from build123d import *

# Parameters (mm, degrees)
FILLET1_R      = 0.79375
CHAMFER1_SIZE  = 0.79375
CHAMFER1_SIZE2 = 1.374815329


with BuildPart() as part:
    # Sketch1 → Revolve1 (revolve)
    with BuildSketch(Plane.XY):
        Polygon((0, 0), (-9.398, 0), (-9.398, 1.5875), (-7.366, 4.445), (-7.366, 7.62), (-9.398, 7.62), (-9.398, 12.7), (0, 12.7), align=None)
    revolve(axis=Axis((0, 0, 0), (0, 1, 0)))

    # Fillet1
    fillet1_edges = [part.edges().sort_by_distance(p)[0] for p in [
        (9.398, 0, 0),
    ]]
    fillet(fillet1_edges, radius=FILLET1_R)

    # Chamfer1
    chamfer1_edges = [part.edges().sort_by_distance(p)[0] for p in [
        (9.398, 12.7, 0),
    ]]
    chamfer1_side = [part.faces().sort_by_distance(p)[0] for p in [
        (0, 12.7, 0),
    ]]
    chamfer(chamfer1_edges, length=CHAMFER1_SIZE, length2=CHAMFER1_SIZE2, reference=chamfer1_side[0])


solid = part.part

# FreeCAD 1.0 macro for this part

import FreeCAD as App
import Part
import Sketcher
Q = App.Units.Quantity


def edges_at(feature, points):
    """Names of the edges that pass closest to the given points."""
    edges = feature.Shape.Edges
    near = lambda p: min(range(len(edges)), key=lambda i: edges[i].distToShape(Part.Vertex(*p))[0])
    return sorted({f"Edge{near(p) + 1}" for p in points})


def add_polygon(sketch, points):
    """Adds a closed chain of lines whose ends are joined by coincident constraints."""
    first, n = sketch.GeometryCount, len(points)
    for a, b in zip(points, points[1:] + points[:1]):
        sketch.addGeometry(Part.LineSegment(App.Vector(*a, 0), App.Vector(*b, 0)), False)
    for i in range(n):
        sketch.addConstraint(Sketcher.Constraint("Coincident", first + i, 2, first + (i + 1) % n, 1))

doc = App.newDocument("Part")
body = doc.addObject("PartDesign::Body", "Body")

# Sketch on XY plane
sketch1 = body.newObject("Sketcher::SketchObject", "Sketch")
sketch1.AttachmentSupport = (doc.getObject("XY_Plane"), [""])
sketch1.MapMode = "FlatFace"
add_polygon(sketch1, [(-9.398, 0), (0, 0), (0, 12.7), (-9.398, 12.7), (-9.398, 7.62), (-7.366, 7.62), (-7.366, 4.445), (-9.398, 1.5875)])  # lines 0-7
sketch1.addConstraint(Sketcher.Constraint("Horizontal", 0))
sketch1.addConstraint(Sketcher.Constraint("Vertical", 1))
sketch1.addConstraint(Sketcher.Constraint("Horizontal", 2))
sketch1.addConstraint(Sketcher.Constraint("Vertical", 3))
sketch1.addConstraint(Sketcher.Constraint("Horizontal", 4))
sketch1.addConstraint(Sketcher.Constraint("Vertical", 5))
sketch1.addConstraint(Sketcher.Constraint("Vertical", 7))
sketch1.addConstraint(Sketcher.Constraint("Coincident", 0, 2, -1, 1))
sketch1.addConstraint(Sketcher.Constraint("Vertical", 3, 2, 6, 2))
sketch1.addConstraint(Sketcher.Constraint("DistanceY", 1, 1, 1, 2, Q("0.5 in")))
sketch1.addConstraint(Sketcher.Constraint("DistanceY", 3, 2, 3, 1, Q("0.2 in")))
sketch1.addConstraint(Sketcher.Constraint("DistanceX", 0, 1, 0, 2, Q("0.37 in")))
sketch1.addConstraint(Sketcher.Constraint("DistanceX", 4, 1, 4, 2, Q("0.08 in")))
sketch1.addConstraint(Sketcher.Constraint("DistanceY", 5, 2, 5, 1, Q("0.125 in")))
sketch1.addConstraint(Sketcher.Constraint("DistanceY", 7, 2, 7, 1, Q("0.0625 in")))
revolution = body.newObject("PartDesign::Revolution", "Revolution")
revolution.Profile = sketch1
revolution.ReferenceAxis = (sketch1, ["V_Axis"])
revolution.Angle = 360
doc.recompute()

fillet = body.newObject("PartDesign::Fillet", "Fillet")
fillet.Base = (revolution, edges_at(revolution, [(9.398, 0, 0)]))
fillet.Radius = Q("0.03125 in")
doc.recompute()

chamfer = body.newObject("PartDesign::Chamfer", "Chamfer")
chamfer.Base = (fillet, edges_at(fillet, [(9.398, 12.7, 0)]))
chamfer.ChamferType = "Two distances"
chamfer.Size = Q("0.03125 in")
chamfer.Size2 = 1.374815
chamfer.FlipDirection = True

doc.recompute()
